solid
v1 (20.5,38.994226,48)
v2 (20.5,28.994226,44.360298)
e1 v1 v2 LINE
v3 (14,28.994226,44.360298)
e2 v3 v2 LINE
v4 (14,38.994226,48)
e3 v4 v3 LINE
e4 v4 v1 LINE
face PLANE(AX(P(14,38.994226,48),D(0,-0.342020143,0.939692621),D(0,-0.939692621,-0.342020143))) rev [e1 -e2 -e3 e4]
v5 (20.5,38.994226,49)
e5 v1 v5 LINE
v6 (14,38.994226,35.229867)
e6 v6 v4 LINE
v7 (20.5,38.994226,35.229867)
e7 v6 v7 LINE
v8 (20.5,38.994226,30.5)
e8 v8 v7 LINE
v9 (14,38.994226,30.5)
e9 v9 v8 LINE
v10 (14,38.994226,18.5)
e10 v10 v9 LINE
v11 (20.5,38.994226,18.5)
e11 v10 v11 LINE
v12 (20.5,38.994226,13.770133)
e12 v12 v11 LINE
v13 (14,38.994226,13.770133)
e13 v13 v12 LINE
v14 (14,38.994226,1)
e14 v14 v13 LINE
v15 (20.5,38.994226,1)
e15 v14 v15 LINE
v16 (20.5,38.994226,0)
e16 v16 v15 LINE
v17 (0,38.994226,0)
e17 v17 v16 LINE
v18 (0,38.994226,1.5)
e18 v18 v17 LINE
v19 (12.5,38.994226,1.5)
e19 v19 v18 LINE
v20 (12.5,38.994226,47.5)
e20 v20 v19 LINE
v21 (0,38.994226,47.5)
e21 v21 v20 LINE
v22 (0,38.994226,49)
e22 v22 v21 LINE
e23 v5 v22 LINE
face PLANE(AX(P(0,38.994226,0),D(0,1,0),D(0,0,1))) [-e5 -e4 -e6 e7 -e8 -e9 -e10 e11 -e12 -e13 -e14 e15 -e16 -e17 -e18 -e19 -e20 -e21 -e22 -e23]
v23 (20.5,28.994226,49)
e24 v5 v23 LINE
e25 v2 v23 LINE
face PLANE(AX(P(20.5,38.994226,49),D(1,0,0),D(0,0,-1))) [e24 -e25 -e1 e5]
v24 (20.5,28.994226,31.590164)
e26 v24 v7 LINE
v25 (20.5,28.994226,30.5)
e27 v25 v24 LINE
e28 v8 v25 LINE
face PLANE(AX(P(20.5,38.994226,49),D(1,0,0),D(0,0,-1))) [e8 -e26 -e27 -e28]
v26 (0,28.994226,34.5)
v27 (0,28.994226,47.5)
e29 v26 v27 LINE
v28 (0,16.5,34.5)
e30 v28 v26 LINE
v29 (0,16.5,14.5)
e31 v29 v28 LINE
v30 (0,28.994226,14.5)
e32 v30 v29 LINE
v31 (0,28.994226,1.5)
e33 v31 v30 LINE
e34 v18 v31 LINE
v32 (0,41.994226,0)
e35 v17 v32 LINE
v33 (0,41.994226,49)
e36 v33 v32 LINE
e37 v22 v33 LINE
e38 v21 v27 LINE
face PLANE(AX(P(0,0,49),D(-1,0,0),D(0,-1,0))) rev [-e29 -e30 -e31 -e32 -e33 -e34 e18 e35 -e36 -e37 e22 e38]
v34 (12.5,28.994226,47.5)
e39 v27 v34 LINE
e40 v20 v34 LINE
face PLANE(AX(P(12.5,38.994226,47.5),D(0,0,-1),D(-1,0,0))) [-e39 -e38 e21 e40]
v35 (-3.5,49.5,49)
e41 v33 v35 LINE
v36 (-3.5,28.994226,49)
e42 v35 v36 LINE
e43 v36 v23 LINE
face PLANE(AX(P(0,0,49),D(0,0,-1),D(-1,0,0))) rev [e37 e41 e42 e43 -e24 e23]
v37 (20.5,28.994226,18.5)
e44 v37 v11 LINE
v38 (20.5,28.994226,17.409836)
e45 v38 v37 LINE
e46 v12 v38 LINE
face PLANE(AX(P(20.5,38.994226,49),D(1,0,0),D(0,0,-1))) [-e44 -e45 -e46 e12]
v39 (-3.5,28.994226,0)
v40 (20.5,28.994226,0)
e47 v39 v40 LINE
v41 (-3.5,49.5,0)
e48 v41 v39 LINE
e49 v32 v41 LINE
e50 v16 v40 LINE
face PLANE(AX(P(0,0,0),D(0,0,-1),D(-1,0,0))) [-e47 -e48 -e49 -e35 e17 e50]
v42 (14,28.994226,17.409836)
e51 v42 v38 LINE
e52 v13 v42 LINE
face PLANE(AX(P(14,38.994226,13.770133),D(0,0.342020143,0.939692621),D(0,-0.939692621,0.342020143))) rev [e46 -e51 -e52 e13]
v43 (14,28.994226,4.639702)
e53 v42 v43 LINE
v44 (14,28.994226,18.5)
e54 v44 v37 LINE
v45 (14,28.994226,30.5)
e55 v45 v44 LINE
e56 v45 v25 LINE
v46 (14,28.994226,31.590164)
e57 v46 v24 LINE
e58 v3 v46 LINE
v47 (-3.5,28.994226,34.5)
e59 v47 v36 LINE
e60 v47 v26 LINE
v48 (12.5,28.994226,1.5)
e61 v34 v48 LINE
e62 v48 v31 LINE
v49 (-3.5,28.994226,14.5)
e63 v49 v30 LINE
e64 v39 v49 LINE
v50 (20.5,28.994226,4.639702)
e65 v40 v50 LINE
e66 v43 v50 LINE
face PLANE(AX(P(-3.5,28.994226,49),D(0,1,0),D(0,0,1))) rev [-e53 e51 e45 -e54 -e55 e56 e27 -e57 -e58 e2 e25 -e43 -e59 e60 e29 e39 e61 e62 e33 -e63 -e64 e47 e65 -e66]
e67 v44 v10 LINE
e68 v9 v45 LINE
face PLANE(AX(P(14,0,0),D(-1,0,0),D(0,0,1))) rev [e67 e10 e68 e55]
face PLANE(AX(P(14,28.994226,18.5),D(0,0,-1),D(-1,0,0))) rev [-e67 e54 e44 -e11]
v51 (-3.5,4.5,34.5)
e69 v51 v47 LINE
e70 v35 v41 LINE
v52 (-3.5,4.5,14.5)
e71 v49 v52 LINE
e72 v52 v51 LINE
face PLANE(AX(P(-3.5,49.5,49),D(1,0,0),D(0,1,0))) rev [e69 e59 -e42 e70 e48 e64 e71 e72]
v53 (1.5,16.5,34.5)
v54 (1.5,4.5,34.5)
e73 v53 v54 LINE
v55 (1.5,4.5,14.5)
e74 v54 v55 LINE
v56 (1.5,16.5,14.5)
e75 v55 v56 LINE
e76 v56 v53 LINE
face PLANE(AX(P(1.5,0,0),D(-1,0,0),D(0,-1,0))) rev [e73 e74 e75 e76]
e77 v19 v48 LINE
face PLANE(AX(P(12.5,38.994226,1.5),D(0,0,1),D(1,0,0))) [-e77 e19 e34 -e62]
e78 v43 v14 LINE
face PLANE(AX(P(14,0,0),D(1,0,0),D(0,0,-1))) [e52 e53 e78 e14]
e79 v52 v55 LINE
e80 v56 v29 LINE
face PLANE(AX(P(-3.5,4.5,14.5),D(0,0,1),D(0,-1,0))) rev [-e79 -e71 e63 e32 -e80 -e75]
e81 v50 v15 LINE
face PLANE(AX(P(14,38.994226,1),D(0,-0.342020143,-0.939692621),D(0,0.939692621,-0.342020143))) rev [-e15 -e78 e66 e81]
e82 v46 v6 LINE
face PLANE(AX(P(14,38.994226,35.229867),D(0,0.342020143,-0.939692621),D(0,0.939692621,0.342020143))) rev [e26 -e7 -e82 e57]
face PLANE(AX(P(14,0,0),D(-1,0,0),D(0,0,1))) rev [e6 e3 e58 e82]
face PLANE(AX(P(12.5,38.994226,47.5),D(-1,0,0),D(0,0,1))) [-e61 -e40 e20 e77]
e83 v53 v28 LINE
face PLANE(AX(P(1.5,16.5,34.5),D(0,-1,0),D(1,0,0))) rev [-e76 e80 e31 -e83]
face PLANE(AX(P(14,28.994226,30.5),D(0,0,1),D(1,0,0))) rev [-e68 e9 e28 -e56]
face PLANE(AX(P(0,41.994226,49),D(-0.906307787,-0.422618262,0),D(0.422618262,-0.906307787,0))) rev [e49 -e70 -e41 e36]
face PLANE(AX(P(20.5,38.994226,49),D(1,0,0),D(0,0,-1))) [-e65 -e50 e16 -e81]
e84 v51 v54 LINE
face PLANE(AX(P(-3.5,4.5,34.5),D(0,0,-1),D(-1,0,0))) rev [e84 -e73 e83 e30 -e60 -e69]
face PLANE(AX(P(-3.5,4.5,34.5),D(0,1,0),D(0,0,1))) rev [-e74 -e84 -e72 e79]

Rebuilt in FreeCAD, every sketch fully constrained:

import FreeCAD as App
import Part
import Sketcher
from FreeCAD import Vector
Q = App.Units.Quantity

doc = App.newDocument("Part")
params = doc.addObject("Spreadsheet::Sheet", "Params")
for row, (alias, value) in enumerate([
    ("sketch1_width", "3.5 mm"),
    ("sketch1_height", "49.5 mm"),
    ("pad1_length", "49 mm"),
    ("sketch2_height", "49 mm"),
    ("sketch2_height2", "20 mm"),
    ("sketch3_height", "46 mm"),
    ("sketch3_height2", "49 mm"),
    ("sketch3_width", "20.5 mm"),
    ("sketch3_width2", "12.5 mm"),
    ("pad2_length", "10 mm"),
    ("sketch4_width", "10 mm"),
    ("sketch4_height", "12 mm"),
    ("pocket2_length", "6.5 mm"),
    ("sketch5_width", "12 mm"),
    ("sketch5_height", "20 mm"),
    ("pad3_length", "1.5 mm"),
], start=1):
    params.set(f"A{row}", alias)
    params.set(f"B{row}", "=" + value)
    params.setAlias(f"B{row}", alias)

body = doc.addObject("PartDesign::Body", "Body")

# Sketch on XY plane
sketch1 = body.newObject("Sketcher::SketchObject", "Sketch")
sketch1.AttachmentSupport = (doc.getObject("XY_Plane"), [""])
sketch1.MapMode = "FlatFace"
sketch1.addGeometry([
    Part.LineSegment(Vector(-3.5, 49.5, 0), Vector(-3.5, 0, 0)),
    Part.LineSegment(Vector(-3.5, 0, 0), Vector(0, 0, 0)),
    Part.LineSegment(Vector(0, 0, 0), Vector(0, 42, 0)),
    Part.LineSegment(Vector(0, 42, 0), Vector(-3.5, 49.5, 0)),
], False)
sketch1.addConstraint([
    Sketcher.Constraint("Coincident", 0, 2, 1, 1),
    Sketcher.Constraint("Coincident", 1, 2, 2, 1),
    Sketcher.Constraint("Coincident", 2, 2, 3, 1),
    Sketcher.Constraint("Coincident", 3, 2, 0, 1),
    Sketcher.Constraint("Vertical", 0),
    Sketcher.Constraint("Horizontal", 1),
    Sketcher.Constraint("Vertical", 2),
    Sketcher.Constraint("Coincident", 1, 2, -1, 1),
    Sketcher.Constraint("Angle", 3, Q("115 deg")),
    Sketcher.Constraint("DistanceX", 1, 1, 1, 2, Q("3.5 mm")),
    Sketcher.Constraint("DistanceY", 0, 2, 0, 1, Q("49.5 mm")),
])
sketch1.setExpression("Constraints[9]", "Params.sketch1_width")
sketch1.setExpression("Constraints[10]", "Params.sketch1_height")
pad1 = body.newObject("PartDesign::Pad", "Pad")
pad1.Profile = sketch1
pad1.setExpression("Length", "Params.pad1_length")

# Sketch on YZ plane
sketch2 = body.newObject("Sketcher::SketchObject", "Sketch001")
sketch2.AttachmentSupport = (doc.getObject("YZ_Plane"), [""])
sketch2.MapMode = "FlatFace"
sketch2.addGeometry([
    Part.LineSegment(Vector(0, 49, 0), Vector(0, 0, 0)),  # 0
    Part.LineSegment(Vector(0, 0, 0), Vector(29, 0, 0)),  # 1
    Part.LineSegment(Vector(29, 0, 0), Vector(29, 14, 0)),  # 2
    Part.LineSegment(Vector(29, 14, 0), Vector(4, 14, 0)),  # 3
    Part.LineSegment(Vector(4, 14, 0), Vector(4, 34, 0)),  # 4
    Part.LineSegment(Vector(4, 34, 0), Vector(29, 34, 0)),  # 5
    Part.LineSegment(Vector(29, 34, 0), Vector(29, 49, 0)),  # 6
    Part.LineSegment(Vector(29, 49, 0), Vector(0, 49, 0)),  # 7
], False)
sketch2.addConstraint([
    Sketcher.Constraint("Coincident", 0, 2, 1, 1),
    Sketcher.Constraint("Coincident", 1, 2, 2, 1),
    Sketcher.Constraint("Coincident", 2, 2, 3, 1),
    Sketcher.Constraint("Coincident", 3, 2, 4, 1),
    Sketcher.Constraint("Coincident", 4, 2, 5, 1),
    Sketcher.Constraint("Coincident", 5, 2, 6, 1),
    Sketcher.Constraint("Coincident", 6, 2, 7, 1),
    Sketcher.Constraint("Coincident", 7, 2, 0, 1),
    Sketcher.Constraint("Vertical", 0),
    Sketcher.Constraint("Horizontal", 1),
    Sketcher.Constraint("Vertical", 2),
    Sketcher.Constraint("Horizontal", 3),
    Sketcher.Constraint("Vertical", 4),
    Sketcher.Constraint("Horizontal", 5),
    Sketcher.Constraint("Vertical", 6),
    Sketcher.Constraint("Horizontal", 7),
    Sketcher.Constraint("Coincident", 0, 2, -1, 1),
    Sketcher.Constraint("Vertical", 2, 2, 5, 2),
    Sketcher.Constraint("Equal", 2, 6),
    Sketcher.Constraint("DistanceY", 0, 2, 0, 1, Q("49 mm")),
    Sketcher.Constraint("DistanceY", 4, 1, 4, 2, Q("20 mm")),
    Sketcher.Constraint("DistanceX", -1, 1, 3, 2, Q("4.5 mm")),
    Sketcher.Constraint("DistanceX", 1, 1, 1, 2, Q("28.994226 mm")),
])
sketch2.setExpression("Constraints[19]", "Params.sketch2_height")
sketch2.setExpression("Constraints[20]", "Params.sketch2_height2")
pocket1 = body.newObject("PartDesign::Pocket", "Pocket")
pocket1.Profile = sketch2
pocket1.Type = "ThroughAll"

# Sketch on XZ plane
sketch3 = body.newObject("Sketcher::SketchObject", "Sketch002")
sketch3.AttachmentSupport = (doc.getObject("XZ_Plane"), [""])
sketch3.MapMode = "FlatFace"
sketch3.AttachmentOffset = App.Placement(Vector(0, 0, -28.994226), App.Rotation())
sketch3.addGeometry([
    Part.LineSegment(Vector(20.5, 49, 0), Vector(0, 49, 0)),  # 0
    Part.LineSegment(Vector(0, 49, 0), Vector(0, 47.5, 0)),  # 1
    Part.LineSegment(Vector(0, 47.5, 0), Vector(12.5, 47.5, 0)),  # 2
    Part.LineSegment(Vector(12.5, 47.5, 0), Vector(12.5, 1.5, 0)),  # 3
    Part.LineSegment(Vector(12.5, 1.5, 0), Vector(0, 1.5, 0)),  # 4
    Part.LineSegment(Vector(0, 1.5, 0), Vector(0, 0, 0)),  # 5
    Part.LineSegment(Vector(0, 0, 0), Vector(20.5, 0, 0)),  # 6
    Part.LineSegment(Vector(20.5, 0, 0), Vector(20.5, 49, 0)),  # 7
], False)
sketch3.addConstraint([
    Sketcher.Constraint("Coincident", 0, 2, 1, 1),
    Sketcher.Constraint("Coincident", 1, 2, 2, 1),
    Sketcher.Constraint("Coincident", 2, 2, 3, 1),
    Sketcher.Constraint("Coincident", 3, 2, 4, 1),
    Sketcher.Constraint("Coincident", 4, 2, 5, 1),
    Sketcher.Constraint("Coincident", 5, 2, 6, 1),
    Sketcher.Constraint("Coincident", 6, 2, 7, 1),
    Sketcher.Constraint("Coincident", 7, 2, 0, 1),
    Sketcher.Constraint("Horizontal", 0),
    Sketcher.Constraint("Vertical", 1),
    Sketcher.Constraint("Horizontal", 2),
    Sketcher.Constraint("Vertical", 3),
    Sketcher.Constraint("Horizontal", 4),
    Sketcher.Constraint("Vertical", 5),
    Sketcher.Constraint("Horizontal", 6),
    Sketcher.Constraint("Vertical", 7),
    Sketcher.Constraint("Coincident", 5, 2, -1, 1),
    Sketcher.Constraint("PointOnObject", 0, 2, -2),
    Sketcher.Constraint("Equal", 1, 5),
    Sketcher.Constraint("DistanceY", 3, 2, 3, 1, Q("46 mm")),
    Sketcher.Constraint("DistanceY", 7, 1, 7, 2, Q("49 mm")),
    Sketcher.Constraint("DistanceX", 0, 2, 0, 1, Q("20.5 mm")),
    Sketcher.Constraint("DistanceX", 2, 1, 2, 2, Q("12.5 mm")),
])
sketch3.setExpression("Constraints[19]", "Params.sketch3_height")
sketch3.setExpression("Constraints[20]", "Params.sketch3_height2")
sketch3.setExpression("Constraints[21]", "Params.sketch3_width")
sketch3.setExpression("Constraints[22]", "Params.sketch3_width2")
pad2 = body.newObject("PartDesign::Pad", "Pad001")
pad2.Profile = sketch3
pad2.setExpression("Length", "Params.pad2_length")
pad2.Reversed = True

# Sketch on YZ plane
sketch4 = body.newObject("Sketcher::SketchObject", "Sketch003")
sketch4.AttachmentSupport = (doc.getObject("YZ_Plane"), [""])
sketch4.MapMode = "FlatFace"
sketch4.AttachmentOffset = App.Placement(Vector(0, 0, 20.5), App.Rotation())
sketch4.addGeometry([
    Part.LineSegment(Vector(39, 30, 0), Vector(29, 30, 0)),  # 0
    Part.LineSegment(Vector(29, 30, 0), Vector(29, 18, 0)),  # 1
    Part.LineSegment(Vector(29, 18, 0), Vector(39, 18, 0)),  # 2
    Part.LineSegment(Vector(39, 18, 0), Vector(39, 30, 0)),  # 3
    Part.LineSegment(Vector(39, 48, 0), Vector(29, 44, 0)),  # 4
    Part.LineSegment(Vector(29, 44, 0), Vector(29, 32, 0)),  # 5
    Part.LineSegment(Vector(29, 32, 0), Vector(39, 35, 0)),  # 6
    Part.LineSegment(Vector(39, 35, 0), Vector(39, 48, 0)),  # 7
    Part.LineSegment(Vector(29, 17, 0), Vector(29, 5, 0)),  # 8
    Part.LineSegment(Vector(29, 5, 0), Vector(39, 1, 0)),  # 9
    Part.LineSegment(Vector(39, 1, 0), Vector(39, 14, 0)),  # 10
    Part.LineSegment(Vector(39, 14, 0), Vector(29, 17, 0)),  # 11
], False)
sketch4.addConstraint([
    Sketcher.Constraint("Coincident", 0, 2, 1, 1),
    Sketcher.Constraint("Coincident", 1, 2, 2, 1),
    Sketcher.Constraint("Coincident", 2, 2, 3, 1),
    Sketcher.Constraint("Coincident", 3, 2, 0, 1),
    Sketcher.Constraint("Coincident", 4, 2, 5, 1),
    Sketcher.Constraint("Coincident", 5, 2, 6, 1),
    Sketcher.Constraint("Coincident", 6, 2, 7, 1),
    Sketcher.Constraint("Coincident", 7, 2, 4, 1),
    Sketcher.Constraint("Coincident", 8, 2, 9, 1),
    Sketcher.Constraint("Coincident", 9, 2, 10, 1),
    Sketcher.Constraint("Coincident", 10, 2, 11, 1),
    Sketcher.Constraint("Coincident", 11, 2, 8, 1),
    Sketcher.Constraint("Horizontal", 0),
    Sketcher.Constraint("Vertical", 1),
    Sketcher.Constraint("Horizontal", 2),
    Sketcher.Constraint("Vertical", 3),
    Sketcher.Constraint("Vertical", 5),
    Sketcher.Constraint("Vertical", 7),
    Sketcher.Constraint("Vertical", 8),
    Sketcher.Constraint("Vertical", 10),
    Sketcher.Constraint("Parallel", 4, 6),
    Sketcher.Constraint("Parallel", 9, 11),
    Sketcher.Constraint("Vertical", 1, 2, 4, 2),
    Sketcher.Constraint("Vertical", 3, 2, 6, 2),
    Sketcher.Constraint("Vertical", 5, 2, 8, 2),
    Sketcher.Constraint("Vertical", 7, 2, 9, 2),
    Sketcher.Constraint("Equal", 7, 8),
    Sketcher.Constraint("Equal", 6, 9),
    Sketcher.Constraint("DistanceX", 0, 2, 0, 1, Q("10 mm")),
    Sketcher.Constraint("DistanceY", 1, 2, 1, 1, Q("12 mm")),
    Sketcher.Constraint("Angle", 4, Q("-160 deg")),
    Sketcher.Constraint("DistanceY", -1, 1, 7, 2, Q("48 mm")),
    Sketcher.Constraint("DistanceY", -1, 1, 9, 2, Q("1 mm")),
    Sketcher.Constraint("DistanceY", -1, 1, 0, 2, Q("30.5 mm")),
    Sketcher.Constraint("DistanceY", 5, 2, 5, 1, Q("12.770133 mm")),
    Sketcher.Constraint("DistanceX", -1, 1, 0, 2, Q("28.994226 mm")),
])
sketch4.setExpression("Constraints[28]", "Params.sketch4_width")
sketch4.setExpression("Constraints[29]", "Params.sketch4_height")
pocket2 = body.newObject("PartDesign::Pocket", "Pocket001")
pocket2.Profile = sketch4
pocket2.setExpression("Length", "Params.pocket2_length")

# Sketch on YZ plane
sketch5 = body.newObject("Sketcher::SketchObject", "Sketch004")
sketch5.AttachmentSupport = (doc.getObject("YZ_Plane"), [""])
sketch5.MapMode = "FlatFace"
sketch5.addGeometry([
    Part.LineSegment(Vector(16, 34, 0), Vector(4, 34, 0)),
    Part.LineSegment(Vector(4, 34, 0), Vector(4, 14, 0)),
    Part.LineSegment(Vector(4, 14, 0), Vector(16, 14, 0)),
    Part.LineSegment(Vector(16, 14, 0), Vector(16, 34, 0)),
], False)
sketch5.addConstraint([
    Sketcher.Constraint("Coincident", 0, 2, 1, 1),
    Sketcher.Constraint("Coincident", 1, 2, 2, 1),
    Sketcher.Constraint("Coincident", 2, 2, 3, 1),
    Sketcher.Constraint("Coincident", 3, 2, 0, 1),
    Sketcher.Constraint("Horizontal", 0),
    Sketcher.Constraint("Vertical", 1),
    Sketcher.Constraint("Horizontal", 2),
    Sketcher.Constraint("Vertical", 3),
    Sketcher.Constraint("DistanceX", 0, 2, 0, 1, Q("12 mm")),
    Sketcher.Constraint("DistanceY", 1, 2, 1, 1, Q("20 mm")),
    Sketcher.Constraint("DistanceX", -1, 1, 0, 2, Q("4.5 mm")),
    Sketcher.Constraint("DistanceY", -1, 1, 0, 2, Q("34.5 mm")),
])
sketch5.setExpression("Constraints[8]", "Params.sketch5_width")
sketch5.setExpression("Constraints[9]", "Params.sketch5_height")
pad3 = body.newObject("PartDesign::Pad", "Pad002")
pad3.Profile = sketch5
pad3.setExpression("Length", "Params.pad3_length")

doc.recompute()
